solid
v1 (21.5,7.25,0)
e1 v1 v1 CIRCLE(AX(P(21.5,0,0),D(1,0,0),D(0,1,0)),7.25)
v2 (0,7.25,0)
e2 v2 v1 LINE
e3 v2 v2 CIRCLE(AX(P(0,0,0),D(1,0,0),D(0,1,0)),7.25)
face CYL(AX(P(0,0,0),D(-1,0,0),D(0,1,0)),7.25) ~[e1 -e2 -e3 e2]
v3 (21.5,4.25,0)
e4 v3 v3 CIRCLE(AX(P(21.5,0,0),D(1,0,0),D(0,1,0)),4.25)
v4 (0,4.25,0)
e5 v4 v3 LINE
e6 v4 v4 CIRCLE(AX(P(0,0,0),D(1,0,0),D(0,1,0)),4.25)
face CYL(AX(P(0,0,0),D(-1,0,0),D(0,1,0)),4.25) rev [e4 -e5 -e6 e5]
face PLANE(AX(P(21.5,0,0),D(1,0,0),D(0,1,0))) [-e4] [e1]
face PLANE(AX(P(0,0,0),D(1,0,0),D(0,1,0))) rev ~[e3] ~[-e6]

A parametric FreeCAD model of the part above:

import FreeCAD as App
import Part
import Sketcher
from FreeCAD import Vector

doc = App.newDocument("Part")
body = doc.addObject("PartDesign::Body", "Body")

sketch1 = body.newObject("Sketcher::SketchObject", "Sketch")
sketch1.AttachmentSupport = (doc.getObject("YZ_Plane"), [""])
sketch1.MapMode = "FlatFace"
sketch1.addGeometry([
    Part.Circle(Vector(0, 0, 0), Vector(0, 0, 1), 7.2),
    Part.Circle(Vector(0, 0, 0), Vector(0, 0, 1), 4.2),
], False)
sketch1.addConstraint([
    Sketcher.Constraint("Coincident", 0, 3, -1, 1),
    Sketcher.Constraint("Coincident", 1, 3, -1, 1),
    Sketcher.Constraint("Diameter", 0, 14.5),
    Sketcher.Constraint("Diameter", 1, 8.5),
])
pad1 = body.newObject("PartDesign::Pad", "Pad")
pad1.Profile = sketch1
pad1.Length = 21.5

doc.recompute()
